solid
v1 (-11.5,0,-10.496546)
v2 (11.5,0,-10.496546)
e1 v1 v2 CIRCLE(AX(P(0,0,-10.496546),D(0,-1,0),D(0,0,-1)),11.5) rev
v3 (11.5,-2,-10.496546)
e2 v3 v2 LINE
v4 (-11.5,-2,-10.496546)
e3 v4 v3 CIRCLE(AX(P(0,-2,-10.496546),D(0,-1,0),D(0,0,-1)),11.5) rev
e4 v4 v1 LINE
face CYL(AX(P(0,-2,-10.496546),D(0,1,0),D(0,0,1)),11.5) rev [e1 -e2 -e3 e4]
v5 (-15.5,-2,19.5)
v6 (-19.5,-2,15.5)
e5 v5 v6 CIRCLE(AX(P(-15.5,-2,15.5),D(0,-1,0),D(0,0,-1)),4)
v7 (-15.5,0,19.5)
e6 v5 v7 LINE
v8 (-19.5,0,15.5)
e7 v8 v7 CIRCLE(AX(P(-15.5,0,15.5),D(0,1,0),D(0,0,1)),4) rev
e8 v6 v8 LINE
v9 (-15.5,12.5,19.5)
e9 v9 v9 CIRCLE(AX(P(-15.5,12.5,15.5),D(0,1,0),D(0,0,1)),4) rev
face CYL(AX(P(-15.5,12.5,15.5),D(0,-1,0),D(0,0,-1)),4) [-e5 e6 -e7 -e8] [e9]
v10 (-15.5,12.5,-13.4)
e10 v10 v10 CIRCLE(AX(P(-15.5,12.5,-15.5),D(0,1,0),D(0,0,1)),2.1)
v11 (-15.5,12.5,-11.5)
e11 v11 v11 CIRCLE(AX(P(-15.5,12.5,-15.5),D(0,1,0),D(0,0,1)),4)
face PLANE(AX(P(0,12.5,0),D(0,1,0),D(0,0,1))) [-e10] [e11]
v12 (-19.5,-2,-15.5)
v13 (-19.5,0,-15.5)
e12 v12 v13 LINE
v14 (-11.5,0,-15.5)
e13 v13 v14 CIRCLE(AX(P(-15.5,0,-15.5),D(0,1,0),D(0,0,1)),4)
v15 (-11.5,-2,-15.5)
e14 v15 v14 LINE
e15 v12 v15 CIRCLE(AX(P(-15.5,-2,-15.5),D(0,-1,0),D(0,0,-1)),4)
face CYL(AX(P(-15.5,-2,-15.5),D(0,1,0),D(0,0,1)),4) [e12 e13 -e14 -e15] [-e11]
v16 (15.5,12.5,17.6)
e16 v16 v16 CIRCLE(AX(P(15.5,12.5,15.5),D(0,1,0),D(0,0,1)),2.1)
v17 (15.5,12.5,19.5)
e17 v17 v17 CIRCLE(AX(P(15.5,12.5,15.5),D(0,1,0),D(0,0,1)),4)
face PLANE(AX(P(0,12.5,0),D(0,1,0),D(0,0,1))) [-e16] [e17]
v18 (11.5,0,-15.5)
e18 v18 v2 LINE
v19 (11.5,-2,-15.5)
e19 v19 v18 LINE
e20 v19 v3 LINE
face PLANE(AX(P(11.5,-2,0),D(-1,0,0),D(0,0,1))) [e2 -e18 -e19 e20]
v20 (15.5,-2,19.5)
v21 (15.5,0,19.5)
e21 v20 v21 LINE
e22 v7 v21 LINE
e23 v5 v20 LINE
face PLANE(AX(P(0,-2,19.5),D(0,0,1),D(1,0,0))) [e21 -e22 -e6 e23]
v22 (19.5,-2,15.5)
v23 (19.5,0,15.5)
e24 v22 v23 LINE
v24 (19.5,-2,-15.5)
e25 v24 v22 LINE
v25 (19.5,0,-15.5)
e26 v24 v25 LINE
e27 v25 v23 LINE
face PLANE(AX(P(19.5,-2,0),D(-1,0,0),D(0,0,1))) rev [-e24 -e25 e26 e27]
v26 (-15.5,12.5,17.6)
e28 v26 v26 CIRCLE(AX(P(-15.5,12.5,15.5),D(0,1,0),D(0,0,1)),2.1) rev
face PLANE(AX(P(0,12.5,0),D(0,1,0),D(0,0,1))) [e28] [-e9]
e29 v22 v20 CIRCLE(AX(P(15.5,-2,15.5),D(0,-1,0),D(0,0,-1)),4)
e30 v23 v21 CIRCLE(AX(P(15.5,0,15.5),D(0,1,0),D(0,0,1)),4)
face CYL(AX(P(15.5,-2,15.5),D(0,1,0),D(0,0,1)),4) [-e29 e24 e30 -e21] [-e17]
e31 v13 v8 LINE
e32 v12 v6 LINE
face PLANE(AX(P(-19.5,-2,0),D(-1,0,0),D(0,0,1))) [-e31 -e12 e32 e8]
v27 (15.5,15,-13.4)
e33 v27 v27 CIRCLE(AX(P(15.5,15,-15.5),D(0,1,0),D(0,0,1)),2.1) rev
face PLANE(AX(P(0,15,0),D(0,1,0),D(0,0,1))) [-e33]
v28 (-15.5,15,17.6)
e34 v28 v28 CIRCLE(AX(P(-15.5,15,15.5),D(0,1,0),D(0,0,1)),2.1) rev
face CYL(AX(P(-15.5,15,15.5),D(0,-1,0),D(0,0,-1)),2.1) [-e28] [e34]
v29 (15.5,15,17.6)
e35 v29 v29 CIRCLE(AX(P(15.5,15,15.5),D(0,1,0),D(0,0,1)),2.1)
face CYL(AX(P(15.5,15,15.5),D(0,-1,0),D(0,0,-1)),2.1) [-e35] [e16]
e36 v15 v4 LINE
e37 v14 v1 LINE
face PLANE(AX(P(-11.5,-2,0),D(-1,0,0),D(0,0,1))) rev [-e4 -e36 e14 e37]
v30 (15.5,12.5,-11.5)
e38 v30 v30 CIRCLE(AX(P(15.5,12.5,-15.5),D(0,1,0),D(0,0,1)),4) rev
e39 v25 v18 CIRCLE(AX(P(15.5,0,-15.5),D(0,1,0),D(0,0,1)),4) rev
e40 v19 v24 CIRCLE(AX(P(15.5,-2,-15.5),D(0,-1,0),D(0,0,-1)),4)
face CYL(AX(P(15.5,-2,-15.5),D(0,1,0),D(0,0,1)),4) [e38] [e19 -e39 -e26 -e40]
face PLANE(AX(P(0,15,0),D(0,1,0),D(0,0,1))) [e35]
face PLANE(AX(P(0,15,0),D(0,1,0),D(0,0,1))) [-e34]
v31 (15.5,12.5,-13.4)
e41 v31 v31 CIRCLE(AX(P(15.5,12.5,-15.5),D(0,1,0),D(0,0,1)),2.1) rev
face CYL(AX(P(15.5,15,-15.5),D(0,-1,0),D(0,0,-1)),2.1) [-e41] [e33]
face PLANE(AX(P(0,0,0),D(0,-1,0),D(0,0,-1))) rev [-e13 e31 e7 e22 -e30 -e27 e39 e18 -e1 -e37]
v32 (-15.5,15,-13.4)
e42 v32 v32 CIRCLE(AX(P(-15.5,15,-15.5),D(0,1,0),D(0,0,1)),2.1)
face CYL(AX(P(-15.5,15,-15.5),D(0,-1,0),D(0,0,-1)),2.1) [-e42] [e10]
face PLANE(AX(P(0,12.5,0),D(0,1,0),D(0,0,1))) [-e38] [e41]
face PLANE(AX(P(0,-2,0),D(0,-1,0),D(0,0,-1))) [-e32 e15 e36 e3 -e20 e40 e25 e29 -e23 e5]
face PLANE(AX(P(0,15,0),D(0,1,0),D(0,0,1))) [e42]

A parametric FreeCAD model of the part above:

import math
import FreeCAD as App
import Part
import Sketcher
Q = App.Units.Quantity

doc = App.newDocument("Part")
body = doc.addObject("PartDesign::Body", "Body")

sketch1 = doc.addObject("Sketcher::SketchObject", "Sketch")
body.addObject(sketch1)
sketch1.AttachmentSupport = (doc.XZ_Plane, [""])
sketch1.MapMode = "FlatFace"
sketch1.addGeometry(Part.Circle(App.Vector(-15.5, 15.5, 0), App.Vector(0, 0, 1), 4), False)
sketch1.addConstraint(Sketcher.Constraint("Diameter", 0, Q("8 mm")))
sketch1.addConstraint(Sketcher.Constraint("DistanceX", 0, 3, -1, 1, Q("15.5 mm")))
sketch1.addConstraint(Sketcher.Constraint("DistanceY", -1, 1, 0, 3, Q("15.5 mm")))
pad1 = doc.addObject("PartDesign::Pad", "Pad")
body.addObject(pad1)
pad1.Profile = sketch1
pad1.Length = 12.5
pad1.Reversed = True
body2 = doc.addObject("PartDesign::Body", "Body001")

sketch2 = doc.addObject("Sketcher::SketchObject", "Sketch001")
body2.addObject(sketch2)
sketch2.AttachmentSupport = (doc.getObject("XZ_Plane001"), [""])
sketch2.MapMode = "FlatFace"
sketch2.addGeometry(Part.Circle(App.Vector(-15.5, -15.5, 0), App.Vector(0, 0, 1), 4), False)
sketch2.addConstraint(Sketcher.Constraint("Diameter", 0, Q("8 mm")))
sketch2.addConstraint(Sketcher.Constraint("DistanceX", 0, 3, -1, 1, Q("15.5 mm")))
sketch2.addConstraint(Sketcher.Constraint("DistanceY", 0, 3, -1, 1, Q("15.5 mm")))
pad2 = doc.addObject("PartDesign::Pad", "Pad001")
body2.addObject(pad2)
pad2.Profile = sketch2
pad2.Length = 12.5
pad2.Reversed = True
body3 = doc.addObject("PartDesign::Body", "Body002")

sketch3 = doc.addObject("Sketcher::SketchObject", "Sketch002")
body3.addObject(sketch3)
sketch3.AttachmentSupport = (doc.getObject("XZ_Plane002"), [""])
sketch3.MapMode = "FlatFace"
sketch3.addGeometry(Part.Circle(App.Vector(15.5, 15.5, 0), App.Vector(0, 0, 1), 4), False)
sketch3.addConstraint(Sketcher.Constraint("Diameter", 0, Q("8 mm")))
sketch3.addConstraint(Sketcher.Constraint("DistanceX", -1, 1, 0, 3, Q("15.5 mm")))
sketch3.addConstraint(Sketcher.Constraint("DistanceY", -1, 1, 0, 3, Q("15.5 mm")))
pad3 = doc.addObject("PartDesign::Pad", "Pad002")
body3.addObject(pad3)
pad3.Profile = sketch3
pad3.Length = 12.5
pad3.Reversed = True
body4 = doc.addObject("PartDesign::Body", "Body003")

sketch4 = doc.addObject("Sketcher::SketchObject", "Sketch003")
body4.addObject(sketch4)
sketch4.AttachmentSupport = (doc.getObject("XZ_Plane003"), [""])
sketch4.MapMode = "FlatFace"
sketch4.addGeometry(Part.Circle(App.Vector(15.5, -15.5, 0), App.Vector(0, 0, 1), 4), False)
sketch4.addConstraint(Sketcher.Constraint("Diameter", 0, Q("8 mm")))
sketch4.addConstraint(Sketcher.Constraint("DistanceX", -1, 1, 0, 3, Q("15.5 mm")))
sketch4.addConstraint(Sketcher.Constraint("DistanceY", 0, 3, -1, 1, Q("15.5 mm")))
pad4 = doc.addObject("PartDesign::Pad", "Pad003")
body4.addObject(pad4)
pad4.Profile = sketch4
pad4.Length = 12.5
pad4.Reversed = True
body.AllowCompound = True
doc.recompute()

boolean = doc.addObject("PartDesign::Boolean", "Boolean")
body.addObject(boolean)
boolean.Type = "Fuse"
boolean.addObjects([body2])
doc.recompute()

boolean2 = doc.addObject("PartDesign::Boolean", "Boolean001")
body.addObject(boolean2)
boolean2.Type = "Fuse"
boolean2.addObjects([body3])
doc.recompute()

boolean3 = doc.addObject("PartDesign::Boolean", "Boolean002")
body.addObject(boolean3)
boolean3.Type = "Fuse"
boolean3.addObjects([body4])

sketch5 = doc.addObject("Sketcher::SketchObject", "Sketch004")
body.addObject(sketch5)
sketch5.AttachmentSupport = (doc.XZ_Plane, [""])
sketch5.MapMode = "FlatFace"
sketch5.AttachmentOffset = App.Placement(App.Vector(0, 0, -12.5), App.Rotation())
sketch5.addGeometry(Part.Circle(App.Vector(-15.5, -15.5, 0), App.Vector(0, 0, 1), 2.1), False)
sketch5.addGeometry(Part.Circle(App.Vector(15.5, -15.5, 0), App.Vector(0, 0, 1), 2.1), False)
sketch5.addGeometry(Part.Circle(App.Vector(15.5, 15.5, 0), App.Vector(0, 0, 1), 2.1), False)
sketch5.addGeometry(Part.Circle(App.Vector(-15.5, 15.5, 0), App.Vector(0, 0, 1), 2.1), False)
sketch5.addConstraint(Sketcher.Constraint("Equal", 0, 1))
sketch5.addConstraint(Sketcher.Constraint("Equal", 1, 2))
sketch5.addConstraint(Sketcher.Constraint("Equal", 2, 3))
sketch5.addConstraint(Sketcher.Constraint("Symmetric", 0, 3, 2, 3, -1, 1))
sketch5.addConstraint(Sketcher.Constraint("Symmetric", 1, 3, 3, 3, -1, 1))
sketch5.addConstraint(Sketcher.Constraint("Symmetric", 0, 3, 1, 3, -2))
sketch5.addConstraint(Sketcher.Constraint("Diameter", 0, Q("4.2 mm")))
sketch5.addConstraint(Sketcher.Constraint("DistanceX", 0, 3, 1, 3, Q("31 mm")))
sketch5.addConstraint(Sketcher.Constraint("DistanceY", 1, 3, 2, 3, Q("31 mm")))
pad5 = doc.addObject("PartDesign::Pad", "Pad004")
body.addObject(pad5)
pad5.Profile = sketch5
pad5.Length = 2.5
pad5.Reversed = True

sketch6 = doc.addObject("Sketcher::SketchObject", "Sketch005")
body.addObject(sketch6)
sketch6.AttachmentSupport = (doc.XZ_Plane, [""])
sketch6.MapMode = "FlatFace"
sketch6.addGeometry(Part.LineSegment(App.Vector(-19.5, 15.5, 0), App.Vector(-19.5, -15.5, 0)), False)
sketch6.addGeometry(Part.ArcOfCircle(Part.Circle(App.Vector(-15.5, -15.5, 0), App.Vector(0, 0, 1), 4), math.radians(180), math.radians(270)), False)
sketch6.addGeometry(Part.ArcOfCircle(Part.Circle(App.Vector(-15.5, -15.5, 0), App.Vector(0, 0, 1), 4), math.radians(-90), math.radians(0)), False)
sketch6.addGeometry(Part.LineSegment(App.Vector(-11.5, -15.5, 0), App.Vector(-11.5, -10.496546, 0)), False)
sketch6.addGeometry(Part.ArcOfCircle(Part.Circle(App.Vector(0, -10.496546, 0), App.Vector(0, 0, 1), 11.5), math.radians(0), math.radians(180)), False)
sketch6.addGeometry(Part.LineSegment(App.Vector(11.5, -10.496546, 0), App.Vector(11.5, -15.5, 0)), False)
sketch6.addGeometry(Part.ArcOfCircle(Part.Circle(App.Vector(15.5, -15.5, 0), App.Vector(0, 0, 1), 4), math.radians(180), math.radians(270)), False)
sketch6.addGeometry(Part.ArcOfCircle(Part.Circle(App.Vector(15.5, -15.5, 0), App.Vector(0, 0, 1), 4), math.radians(-90), math.radians(0)), False)
sketch6.addGeometry(Part.LineSegment(App.Vector(19.5, -15.5, 0), App.Vector(19.5, 15.5, 0)), False)
sketch6.addGeometry(Part.ArcOfCircle(Part.Circle(App.Vector(15.5, 15.5, 0), App.Vector(0, 0, 1), 4), math.radians(0), math.radians(90)), False)
sketch6.addGeometry(Part.LineSegment(App.Vector(15.5, 19.5, 0), App.Vector(-15.5, 19.5, 0)), False)
sketch6.addGeometry(Part.ArcOfCircle(Part.Circle(App.Vector(-15.5, 15.5, 0), App.Vector(0, 0, 1), 4), math.radians(90), math.radians(180)), False)
sketch6.addConstraint(Sketcher.Constraint("Tangent", 0, 2, 1, 1))
sketch6.addConstraint(Sketcher.Constraint("Tangent", 1, 2, 2, 1))
sketch6.addConstraint(Sketcher.Constraint("Tangent", 2, 2, 3, 1))
sketch6.addConstraint(Sketcher.Constraint("Tangent", 3, 2, 4, 2))
sketch6.addConstraint(Sketcher.Constraint("Tangent", 4, 1, 5, 1))
sketch6.addConstraint(Sketcher.Constraint("Tangent", 5, 2, 6, 1))
sketch6.addConstraint(Sketcher.Constraint("Tangent", 6, 2, 7, 1))
sketch6.addConstraint(Sketcher.Constraint("Tangent", 7, 2, 8, 1))
sketch6.addConstraint(Sketcher.Constraint("Tangent", 8, 2, 9, 1))
sketch6.addConstraint(Sketcher.Constraint("Tangent", 9, 2, 10, 1))
sketch6.addConstraint(Sketcher.Constraint("Tangent", 10, 2, 11, 1))
sketch6.addConstraint(Sketcher.Constraint("Tangent", 11, 2, 0, 1))
sketch6.addConstraint(Sketcher.Constraint("Vertical", 0))
sketch6.addConstraint(Sketcher.Constraint("Vertical", 3))
sketch6.addConstraint(Sketcher.Constraint("Vertical", 5))
sketch6.addConstraint(Sketcher.Constraint("Vertical", 8))
sketch6.addConstraint(Sketcher.Constraint("Horizontal", 10))
sketch6.addConstraint(Sketcher.Constraint("Equal", 1, 2))
sketch6.addConstraint(Sketcher.Constraint("Equal", 2, 6))
sketch6.addConstraint(Sketcher.Constraint("Equal", 6, 7))
sketch6.addConstraint(Sketcher.Constraint("Equal", 7, 9))
sketch6.addConstraint(Sketcher.Constraint("Equal", 9, 11))
sketch6.addConstraint(Sketcher.Constraint("Symmetric", 1, 3, 9, 3, -1, 1))
sketch6.addConstraint(Sketcher.Constraint("Symmetric", 6, 2, 10, 2, -1, 1))
sketch6.addConstraint(Sketcher.Constraint("Vertical", 11, 3, 1, 2))
sketch6.addConstraint(Sketcher.Constraint("Equal", 10, 0))
sketch6.addConstraint(Sketcher.Constraint("Radius", 1, Q("4 mm")))
sketch6.addConstraint(Sketcher.Constraint("Radius", 4, Q("11.5 mm")))
sketch6.addConstraint(Sketcher.Constraint("DistanceY", 3, 1, 3, 2, Q("5.003454 mm")))
pad6 = doc.addObject("PartDesign::Pad", "Pad005")
body.addObject(pad6)
pad6.Profile = sketch6
pad6.Length = 2

doc.recompute()
